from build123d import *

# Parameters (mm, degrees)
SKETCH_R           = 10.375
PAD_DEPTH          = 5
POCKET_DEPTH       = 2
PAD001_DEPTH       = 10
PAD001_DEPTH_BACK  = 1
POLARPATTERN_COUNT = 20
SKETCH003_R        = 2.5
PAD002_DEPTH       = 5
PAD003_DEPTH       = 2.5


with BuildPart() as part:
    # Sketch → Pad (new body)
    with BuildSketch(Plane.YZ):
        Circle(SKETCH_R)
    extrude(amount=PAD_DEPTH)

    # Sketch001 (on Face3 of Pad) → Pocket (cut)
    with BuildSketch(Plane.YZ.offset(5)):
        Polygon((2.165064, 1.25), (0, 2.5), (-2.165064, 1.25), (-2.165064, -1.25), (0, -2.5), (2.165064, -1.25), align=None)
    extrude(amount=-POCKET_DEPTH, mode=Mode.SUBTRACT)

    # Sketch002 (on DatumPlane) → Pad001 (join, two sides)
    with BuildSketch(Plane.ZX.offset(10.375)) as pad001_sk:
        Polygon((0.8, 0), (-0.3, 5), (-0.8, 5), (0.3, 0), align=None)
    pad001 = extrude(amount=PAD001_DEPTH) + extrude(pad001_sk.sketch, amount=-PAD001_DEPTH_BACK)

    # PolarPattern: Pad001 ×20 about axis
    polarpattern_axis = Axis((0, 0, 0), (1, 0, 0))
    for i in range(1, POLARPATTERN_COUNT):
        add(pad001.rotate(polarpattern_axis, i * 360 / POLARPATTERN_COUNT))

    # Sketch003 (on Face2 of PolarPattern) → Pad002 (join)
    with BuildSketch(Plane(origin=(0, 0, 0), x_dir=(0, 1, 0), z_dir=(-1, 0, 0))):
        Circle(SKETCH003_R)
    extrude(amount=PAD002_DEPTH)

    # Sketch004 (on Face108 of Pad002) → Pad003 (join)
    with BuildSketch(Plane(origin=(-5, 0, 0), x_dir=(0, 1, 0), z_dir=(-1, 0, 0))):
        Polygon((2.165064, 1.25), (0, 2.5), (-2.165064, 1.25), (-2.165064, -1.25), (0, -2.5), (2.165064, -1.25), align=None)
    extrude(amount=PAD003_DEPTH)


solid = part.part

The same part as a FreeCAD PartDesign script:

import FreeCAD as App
import Part
import Sketcher
from FreeCAD import Vector
Q = App.Units.Quantity


def add_polygon(sketch, points):
    """Adds a closed chain of lines whose ends are joined by coincident constraints."""
    first, n = sketch.GeometryCount, len(points)
    for a, b in zip(points, points[1:] + points[:1]):
        sketch.addGeometry(Part.LineSegment(App.Vector(*a, 0), App.Vector(*b, 0)), False)
    for i in range(n):
        sketch.addConstraint(Sketcher.Constraint("Coincident", first + i, 2, first + (i + 1) % n, 1))

doc = App.newDocument("Part")
params = doc.addObject("Spreadsheet::Sheet", "Params")
for row, (alias, value) in enumerate([
    ("sketch1_diameter", "20.75 mm"),
    ("pad1_length", "5 mm"),
    ("sketch2_height", "2.5 mm"),
    ("pocket1_length", "2 mm"),
    ("sketch3_height", "0.5 mm"),
    ("pad2_length", "10 mm"),
    ("pad2_length2", "1 mm"),
    ("sketch4_diameter", "5 mm"),
    ("pad3_length", "5 mm"),
    ("sketch5_height", "2.5 mm"),
    ("pad4_length", "2.5 mm"),
], start=1):
    params.set(f"A{row}", alias)
    params.set(f"B{row}", "=" + value)
    params.setAlias(f"B{row}", alias)

body = doc.addObject("PartDesign::Body", "Body")

# Sketch on YZ plane
sketch1 = body.newObject("Sketcher::SketchObject", "Sketch")
sketch1.AttachmentSupport = (doc.getObject("YZ_Plane"), [""])
sketch1.MapMode = "FlatFace"
sketch1.addGeometry(Part.Circle(Vector(0, 0, 0), Vector(0, 0, 1), 10.375), False)
sketch1.addConstraint([
    Sketcher.Constraint("Coincident", 0, 3, -1, 1),
    Sketcher.Constraint("Diameter", 0, 20.75),
])
sketch1.setExpression("Constraints[1]", "Params.sketch1_diameter")
pad1 = body.newObject("PartDesign::Pad", "Pad")
pad1.Profile = sketch1
pad1.setExpression("Length", "Params.pad1_length")

# Sketch on YZ plane
sketch2 = body.newObject("Sketcher::SketchObject", "Sketch001")
sketch2.AttachmentSupport = (doc.getObject("YZ_Plane"), [""])
sketch2.MapMode = "FlatFace"
sketch2.AttachmentOffset = App.Placement(Vector(0, 0, 5), App.Rotation())
add_polygon(sketch2, [(2.165064, 1.25), (0, 2.5), (-2.165064, 1.25), (-2.165064, -1.25), (0, -2.5), (2.165064, -1.25)])  # lines 0-5
sketch2.addConstraint([
    Sketcher.Constraint("Vertical", 2),
    Sketcher.Constraint("Vertical", 5),
    Sketcher.Constraint("Symmetric", 0, 2, 3, 2, -1, 1),
    Sketcher.Constraint("Symmetric", 1, 2, 4, 2, -1, 1),
    Sketcher.Constraint("PointOnObject", 0, 2, -2),
    Sketcher.Constraint("Parallel", 0, 3),
    Sketcher.Constraint("Horizontal", 2, 2, 4, 2),
    Sketcher.Constraint("Angle", 0, Q("150.000006 deg")),
    Sketcher.Constraint("DistanceY", 2, 2, 2, 1, 2.5),
    Sketcher.Constraint("DistanceY", 3, 2, 0, 2, 5.0),
])
sketch2.setExpression("Constraints[14]", "Params.sketch2_height")
pocket1 = body.newObject("PartDesign::Pocket", "Pocket")
pocket1.Profile = sketch2
pocket1.setExpression("Length", "Params.pocket1_length")

# Sketch on XZ plane
sketch3 = body.newObject("Sketcher::SketchObject", "Sketch002")
sketch3.AttachmentSupport = (doc.getObject("XZ_Plane"), [""])
sketch3.MapMode = "FlatFace"
sketch3.AttachmentOffset = App.Placement(Vector(0, 0, -10.375), App.Rotation())
add_polygon(sketch3, [(0, 0.8), (5, -0.3), (5, -0.8), (0, 0.3)])  # lines 0-3
sketch3.addConstraint([
    Sketcher.Constraint("Vertical", 1),
    Sketcher.Constraint("Vertical", 3),
    Sketcher.Constraint("PointOnObject", 2, 2, -2),
    Sketcher.Constraint("Parallel", 0, 2),
    Sketcher.Constraint("DistanceY", 1, 2, 1, 1, 0.5),
    Sketcher.Constraint("DistanceX", -1, 1, 0, 2, 5.0),
    Sketcher.Constraint("DistanceY", 0, 2, -1, 1, 0.3),
    Sketcher.Constraint("DistanceY", -1, 1, 2, 2, 0.3),
])
sketch3.setExpression("Constraints[8]", "Params.sketch3_height")
pad2 = body.newObject("PartDesign::Pad", "Pad001")
pad2.Profile = sketch3
pad2.Type = "TwoLengths"
pad2.setExpression("Length", "Params.pad2_length")
pad2.setExpression("Length2", "Params.pad2_length2")
pad2.Reversed = True
doc.recompute()

polarpattern = body.newObject("PartDesign::PolarPattern", "PolarPattern")
polarpattern.Originals = [pad2]
polarpattern.Axis = (doc.getObject("X_Axis"), [""])
polarpattern.Angle = 360
polarpattern.Occurrences = 20
body.Tip = polarpattern

# Sketch on YZ plane
sketch4 = body.newObject("Sketcher::SketchObject", "Sketch003")
sketch4.AttachmentSupport = (doc.getObject("YZ_Plane"), [""])
sketch4.MapMode = "FlatFace"
sketch4.addGeometry(Part.Circle(Vector(0, 0, 0), Vector(0, 0, 1), 2.5), False)
sketch4.addConstraint([
    Sketcher.Constraint("Coincident", 0, 3, -1, 1),
    Sketcher.Constraint("Diameter", 0, 5.0),
])
sketch4.setExpression("Constraints[1]", "Params.sketch4_diameter")
pad3 = body.newObject("PartDesign::Pad", "Pad002")
pad3.Profile = sketch4
pad3.setExpression("Length", "Params.pad3_length")
pad3.Reversed = True

# Sketch on YZ plane
sketch5 = body.newObject("Sketcher::SketchObject", "Sketch004")
sketch5.AttachmentSupport = (doc.getObject("YZ_Plane"), [""])
sketch5.MapMode = "FlatFace"
sketch5.AttachmentOffset = App.Placement(Vector(0, 0, -5), App.Rotation())
add_polygon(sketch5, [(2.165064, -1.25), (0, -2.5), (-2.165064, -1.25), (-2.165064, 1.25), (0, 2.5), (2.165064, 1.25)])  # lines 0-5
sketch5.addConstraint([
    Sketcher.Constraint("Vertical", 2),
    Sketcher.Constraint("Vertical", 5),
    Sketcher.Constraint("Symmetric", 0, 2, 3, 2, -1, 1),
    Sketcher.Constraint("Symmetric", 1, 2, 4, 2, -1, 1),
    Sketcher.Constraint("PointOnObject", 0, 2, -2),
    Sketcher.Constraint("Parallel", 0, 3),
    Sketcher.Constraint("Horizontal", 2, 2, 4, 2),
    Sketcher.Constraint("Angle", 0, Q("-150.000006 deg")),
    Sketcher.Constraint("DistanceY", 2, 1, 2, 2, 2.5),
    Sketcher.Constraint("DistanceY", 0, 2, 3, 2, 5.0),
])
sketch5.setExpression("Constraints[14]", "Params.sketch5_height")
pad4 = body.newObject("PartDesign::Pad", "Pad003")
pad4.Profile = sketch5
pad4.setExpression("Length", "Params.pad4_length")
pad4.Reversed = True

doc.recompute()
